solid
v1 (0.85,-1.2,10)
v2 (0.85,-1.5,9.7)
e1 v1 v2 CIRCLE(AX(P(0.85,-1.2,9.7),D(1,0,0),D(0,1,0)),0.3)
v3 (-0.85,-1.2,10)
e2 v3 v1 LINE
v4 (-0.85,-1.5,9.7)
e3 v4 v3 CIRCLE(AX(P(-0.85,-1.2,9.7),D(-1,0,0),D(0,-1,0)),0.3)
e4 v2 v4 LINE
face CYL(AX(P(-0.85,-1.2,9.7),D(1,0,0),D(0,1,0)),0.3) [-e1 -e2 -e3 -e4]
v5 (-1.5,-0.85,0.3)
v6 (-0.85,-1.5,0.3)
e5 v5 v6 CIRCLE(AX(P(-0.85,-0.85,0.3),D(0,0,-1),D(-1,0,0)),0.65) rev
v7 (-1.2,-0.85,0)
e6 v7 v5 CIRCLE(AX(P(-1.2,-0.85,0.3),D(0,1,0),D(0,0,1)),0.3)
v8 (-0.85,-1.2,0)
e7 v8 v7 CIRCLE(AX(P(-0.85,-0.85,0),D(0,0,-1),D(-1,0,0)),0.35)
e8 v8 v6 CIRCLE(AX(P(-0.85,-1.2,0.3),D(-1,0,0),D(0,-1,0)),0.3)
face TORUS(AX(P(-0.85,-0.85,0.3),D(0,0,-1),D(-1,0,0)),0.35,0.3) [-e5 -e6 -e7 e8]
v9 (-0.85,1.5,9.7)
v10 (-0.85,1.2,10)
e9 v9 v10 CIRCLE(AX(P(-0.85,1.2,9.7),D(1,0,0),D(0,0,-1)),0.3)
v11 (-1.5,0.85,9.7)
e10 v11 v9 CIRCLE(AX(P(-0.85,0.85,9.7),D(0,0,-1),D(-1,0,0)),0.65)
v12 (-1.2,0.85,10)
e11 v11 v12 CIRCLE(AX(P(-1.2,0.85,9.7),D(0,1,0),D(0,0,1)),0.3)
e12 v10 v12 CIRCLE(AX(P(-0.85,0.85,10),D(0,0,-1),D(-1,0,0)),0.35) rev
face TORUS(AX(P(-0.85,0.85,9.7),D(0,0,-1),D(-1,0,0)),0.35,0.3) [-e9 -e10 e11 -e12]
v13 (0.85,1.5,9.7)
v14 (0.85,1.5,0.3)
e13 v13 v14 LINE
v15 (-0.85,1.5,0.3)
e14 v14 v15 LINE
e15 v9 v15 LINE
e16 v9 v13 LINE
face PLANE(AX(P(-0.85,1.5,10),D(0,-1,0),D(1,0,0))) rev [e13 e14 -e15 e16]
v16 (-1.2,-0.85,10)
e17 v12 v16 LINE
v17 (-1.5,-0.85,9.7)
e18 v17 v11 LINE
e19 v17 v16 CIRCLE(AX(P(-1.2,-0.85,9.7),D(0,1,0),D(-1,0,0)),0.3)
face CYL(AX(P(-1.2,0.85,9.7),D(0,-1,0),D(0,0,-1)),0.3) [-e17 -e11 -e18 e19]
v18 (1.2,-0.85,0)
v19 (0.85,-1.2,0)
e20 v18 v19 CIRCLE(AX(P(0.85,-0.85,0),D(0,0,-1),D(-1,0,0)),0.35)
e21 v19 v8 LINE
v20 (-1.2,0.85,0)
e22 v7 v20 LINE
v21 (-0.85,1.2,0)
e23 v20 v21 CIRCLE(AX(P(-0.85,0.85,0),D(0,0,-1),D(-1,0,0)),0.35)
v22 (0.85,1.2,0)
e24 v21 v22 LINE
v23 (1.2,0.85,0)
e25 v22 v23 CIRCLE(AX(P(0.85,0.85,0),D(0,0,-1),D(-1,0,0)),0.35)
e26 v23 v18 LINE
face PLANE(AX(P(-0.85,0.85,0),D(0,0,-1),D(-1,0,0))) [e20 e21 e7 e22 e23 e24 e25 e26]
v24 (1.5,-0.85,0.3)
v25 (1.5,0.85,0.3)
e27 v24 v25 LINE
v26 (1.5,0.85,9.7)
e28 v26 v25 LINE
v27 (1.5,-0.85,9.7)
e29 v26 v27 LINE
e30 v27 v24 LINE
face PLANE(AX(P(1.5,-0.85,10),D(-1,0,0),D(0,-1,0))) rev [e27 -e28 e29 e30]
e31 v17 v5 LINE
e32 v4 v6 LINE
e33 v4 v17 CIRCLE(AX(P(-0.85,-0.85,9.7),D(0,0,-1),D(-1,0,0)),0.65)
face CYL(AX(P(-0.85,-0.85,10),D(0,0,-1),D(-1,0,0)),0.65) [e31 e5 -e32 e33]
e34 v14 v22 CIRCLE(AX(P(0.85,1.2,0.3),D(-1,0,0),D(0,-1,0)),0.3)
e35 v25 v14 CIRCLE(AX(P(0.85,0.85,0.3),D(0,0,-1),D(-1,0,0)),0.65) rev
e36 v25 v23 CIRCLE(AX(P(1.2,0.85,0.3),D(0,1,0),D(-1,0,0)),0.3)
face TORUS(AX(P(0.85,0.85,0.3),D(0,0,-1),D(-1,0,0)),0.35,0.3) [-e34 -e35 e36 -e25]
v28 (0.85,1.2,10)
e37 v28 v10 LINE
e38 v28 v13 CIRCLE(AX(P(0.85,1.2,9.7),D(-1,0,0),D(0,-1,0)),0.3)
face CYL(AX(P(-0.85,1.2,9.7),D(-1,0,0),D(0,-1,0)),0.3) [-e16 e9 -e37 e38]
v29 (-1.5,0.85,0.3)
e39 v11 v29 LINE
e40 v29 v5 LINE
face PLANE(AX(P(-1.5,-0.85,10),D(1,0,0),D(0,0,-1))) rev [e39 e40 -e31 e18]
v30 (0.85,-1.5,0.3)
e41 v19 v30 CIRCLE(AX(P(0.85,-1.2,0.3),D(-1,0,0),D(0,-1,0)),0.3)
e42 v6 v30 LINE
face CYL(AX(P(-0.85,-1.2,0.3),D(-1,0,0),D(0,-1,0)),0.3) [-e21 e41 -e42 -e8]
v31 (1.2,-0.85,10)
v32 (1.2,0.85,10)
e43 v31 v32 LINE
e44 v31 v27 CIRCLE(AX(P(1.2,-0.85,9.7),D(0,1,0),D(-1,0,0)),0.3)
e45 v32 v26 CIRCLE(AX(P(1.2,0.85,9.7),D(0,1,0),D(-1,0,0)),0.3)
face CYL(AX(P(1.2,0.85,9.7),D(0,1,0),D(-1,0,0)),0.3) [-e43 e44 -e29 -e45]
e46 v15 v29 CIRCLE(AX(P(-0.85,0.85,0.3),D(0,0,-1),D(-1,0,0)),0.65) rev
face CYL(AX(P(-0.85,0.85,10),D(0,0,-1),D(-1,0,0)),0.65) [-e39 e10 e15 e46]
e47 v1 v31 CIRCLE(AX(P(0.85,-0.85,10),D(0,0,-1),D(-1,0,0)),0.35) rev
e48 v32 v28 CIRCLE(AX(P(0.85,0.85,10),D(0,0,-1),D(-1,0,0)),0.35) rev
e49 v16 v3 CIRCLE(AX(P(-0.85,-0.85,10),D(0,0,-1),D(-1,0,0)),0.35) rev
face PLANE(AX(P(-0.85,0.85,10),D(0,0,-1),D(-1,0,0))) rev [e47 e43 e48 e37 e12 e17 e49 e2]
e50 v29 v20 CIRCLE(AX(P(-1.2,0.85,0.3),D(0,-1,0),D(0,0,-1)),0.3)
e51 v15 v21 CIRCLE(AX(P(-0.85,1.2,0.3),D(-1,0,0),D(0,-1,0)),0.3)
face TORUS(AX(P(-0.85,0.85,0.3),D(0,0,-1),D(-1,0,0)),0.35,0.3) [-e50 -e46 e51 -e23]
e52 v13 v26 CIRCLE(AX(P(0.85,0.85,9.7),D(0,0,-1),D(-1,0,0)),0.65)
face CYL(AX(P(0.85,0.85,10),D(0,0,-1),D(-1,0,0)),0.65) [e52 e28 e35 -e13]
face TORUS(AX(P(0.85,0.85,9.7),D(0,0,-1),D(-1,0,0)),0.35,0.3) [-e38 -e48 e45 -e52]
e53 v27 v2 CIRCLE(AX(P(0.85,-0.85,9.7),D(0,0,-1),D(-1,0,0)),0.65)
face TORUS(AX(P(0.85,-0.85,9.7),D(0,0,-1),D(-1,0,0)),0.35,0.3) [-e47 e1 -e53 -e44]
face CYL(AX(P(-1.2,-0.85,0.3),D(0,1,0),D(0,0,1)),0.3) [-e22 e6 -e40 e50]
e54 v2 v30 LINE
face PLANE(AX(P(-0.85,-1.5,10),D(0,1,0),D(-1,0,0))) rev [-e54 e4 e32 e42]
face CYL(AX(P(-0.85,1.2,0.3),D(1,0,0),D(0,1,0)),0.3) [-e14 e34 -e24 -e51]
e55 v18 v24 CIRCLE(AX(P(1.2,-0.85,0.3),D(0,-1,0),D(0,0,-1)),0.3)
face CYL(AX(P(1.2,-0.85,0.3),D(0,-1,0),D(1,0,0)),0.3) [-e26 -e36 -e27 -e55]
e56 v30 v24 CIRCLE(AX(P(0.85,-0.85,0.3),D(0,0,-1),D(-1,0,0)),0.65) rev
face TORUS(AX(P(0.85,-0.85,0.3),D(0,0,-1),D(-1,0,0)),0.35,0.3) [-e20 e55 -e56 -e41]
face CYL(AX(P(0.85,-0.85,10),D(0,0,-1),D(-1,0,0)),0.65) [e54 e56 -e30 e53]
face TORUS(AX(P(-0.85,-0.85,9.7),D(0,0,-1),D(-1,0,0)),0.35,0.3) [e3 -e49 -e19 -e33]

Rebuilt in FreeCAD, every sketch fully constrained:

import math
import FreeCAD as App
import Part
import Sketcher
from FreeCAD import Vector


def edges_at(feature, points):
    """Names of the edges that pass closest to the given points."""
    edges = feature.Shape.Edges
    near = lambda p: min(range(len(edges)), key=lambda i: edges[i].distToShape(Part.Vertex(*p))[0])
    return sorted({f"Edge{near(p) + 1}" for p in points})

doc = App.newDocument("Part")
body = doc.addObject("PartDesign::Body", "Body")

sketch1 = body.newObject("Sketcher::SketchObject", "Sketch")
sketch1.AttachmentSupport = (doc.getObject("XY_Plane"), [""])
sketch1.MapMode = "FlatFace"
sketch1.addGeometry([
    Part.LineSegment(Vector(0.8, 1.5, 0), Vector(-0.8, 1.5, 0)),
    Part.ArcOfCircle(Part.Circle(Vector(-0.9, 0.9, 0), Vector(0, 0, 1), 0.6), math.radians(90), math.radians(180)),
    Part.LineSegment(Vector(-1.5, 0.8, 0), Vector(-1.5, -0.8, 0)),
    Part.ArcOfCircle(Part.Circle(Vector(-0.9, -0.9, 0), Vector(0, 0, 1), 0.6), math.radians(180), math.radians(270)),
    Part.LineSegment(Vector(-0.8, -1.5, 0), Vector(0.8, -1.5, 0)),
    Part.ArcOfCircle(Part.Circle(Vector(0.9, -0.9, 0), Vector(0, 0, 1), 0.6), math.radians(-90), math.radians(0)),
    Part.LineSegment(Vector(1.5, -0.8, 0), Vector(1.5, 0.8, 0)),
    Part.ArcOfCircle(Part.Circle(Vector(0.9, 0.9, 0), Vector(0, 0, 1), 0.6), math.radians(0), math.radians(90)),
], False)
sketch1.addConstraint([
    Sketcher.Constraint("Tangent", 0, 2, 1, 1),
    Sketcher.Constraint("Tangent", 1, 2, 2, 1),
    Sketcher.Constraint("Tangent", 2, 2, 3, 1),
    Sketcher.Constraint("Tangent", 3, 2, 4, 1),
    Sketcher.Constraint("Tangent", 4, 2, 5, 1),
    Sketcher.Constraint("Tangent", 5, 2, 6, 1),
    Sketcher.Constraint("Tangent", 6, 2, 7, 1),
    Sketcher.Constraint("Tangent", 7, 2, 0, 1),
    Sketcher.Constraint("Horizontal", 0),
    Sketcher.Constraint("Vertical", 2),
    Sketcher.Constraint("Horizontal", 4),
    Sketcher.Constraint("Vertical", 6),
    Sketcher.Constraint("Equal", 1, 3),
    Sketcher.Constraint("Equal", 3, 5),
    Sketcher.Constraint("Equal", 5, 7),
    Sketcher.Constraint("Symmetric", 1, 3, 5, 3, -1, 1),
    Sketcher.Constraint("Equal", 4, 2),
    Sketcher.Constraint("Radius", 1, 0.65),
    Sketcher.Constraint("DistanceX", 0, 2, 0, 1, 1.7),
])
pad1 = body.newObject("PartDesign::Pad", "Pad")
pad1.Profile = sketch1
pad1.Length = 10
doc.recompute()

fillet = body.newObject("PartDesign::Fillet", "Fillet")
fillet.Base = (pad1, edges_at(pad1, [
    (0, -1.5, 0),
    (-1.31, -1.31, 0),
    (-1.5, 0, 0),
    (-1.31, 1.31, 0),
    (-1.31, -1.31, 10),
    (0, -1.5, 10),
    (1.31, -1.31, 10),
    (1.5, 0, 10),
    (1.31, 1.31, 10),
    (0, 1.5, 10),
    (-1.31, 1.31, 10),
    (0, 1.5, 0),
    (-1.5, 0, 10),
    (1.31, 1.31, 0),
    (1.5, 0, 0),
    (1.31, -1.31, 0),
]))
fillet.Radius = 0.3

doc.recompute()
